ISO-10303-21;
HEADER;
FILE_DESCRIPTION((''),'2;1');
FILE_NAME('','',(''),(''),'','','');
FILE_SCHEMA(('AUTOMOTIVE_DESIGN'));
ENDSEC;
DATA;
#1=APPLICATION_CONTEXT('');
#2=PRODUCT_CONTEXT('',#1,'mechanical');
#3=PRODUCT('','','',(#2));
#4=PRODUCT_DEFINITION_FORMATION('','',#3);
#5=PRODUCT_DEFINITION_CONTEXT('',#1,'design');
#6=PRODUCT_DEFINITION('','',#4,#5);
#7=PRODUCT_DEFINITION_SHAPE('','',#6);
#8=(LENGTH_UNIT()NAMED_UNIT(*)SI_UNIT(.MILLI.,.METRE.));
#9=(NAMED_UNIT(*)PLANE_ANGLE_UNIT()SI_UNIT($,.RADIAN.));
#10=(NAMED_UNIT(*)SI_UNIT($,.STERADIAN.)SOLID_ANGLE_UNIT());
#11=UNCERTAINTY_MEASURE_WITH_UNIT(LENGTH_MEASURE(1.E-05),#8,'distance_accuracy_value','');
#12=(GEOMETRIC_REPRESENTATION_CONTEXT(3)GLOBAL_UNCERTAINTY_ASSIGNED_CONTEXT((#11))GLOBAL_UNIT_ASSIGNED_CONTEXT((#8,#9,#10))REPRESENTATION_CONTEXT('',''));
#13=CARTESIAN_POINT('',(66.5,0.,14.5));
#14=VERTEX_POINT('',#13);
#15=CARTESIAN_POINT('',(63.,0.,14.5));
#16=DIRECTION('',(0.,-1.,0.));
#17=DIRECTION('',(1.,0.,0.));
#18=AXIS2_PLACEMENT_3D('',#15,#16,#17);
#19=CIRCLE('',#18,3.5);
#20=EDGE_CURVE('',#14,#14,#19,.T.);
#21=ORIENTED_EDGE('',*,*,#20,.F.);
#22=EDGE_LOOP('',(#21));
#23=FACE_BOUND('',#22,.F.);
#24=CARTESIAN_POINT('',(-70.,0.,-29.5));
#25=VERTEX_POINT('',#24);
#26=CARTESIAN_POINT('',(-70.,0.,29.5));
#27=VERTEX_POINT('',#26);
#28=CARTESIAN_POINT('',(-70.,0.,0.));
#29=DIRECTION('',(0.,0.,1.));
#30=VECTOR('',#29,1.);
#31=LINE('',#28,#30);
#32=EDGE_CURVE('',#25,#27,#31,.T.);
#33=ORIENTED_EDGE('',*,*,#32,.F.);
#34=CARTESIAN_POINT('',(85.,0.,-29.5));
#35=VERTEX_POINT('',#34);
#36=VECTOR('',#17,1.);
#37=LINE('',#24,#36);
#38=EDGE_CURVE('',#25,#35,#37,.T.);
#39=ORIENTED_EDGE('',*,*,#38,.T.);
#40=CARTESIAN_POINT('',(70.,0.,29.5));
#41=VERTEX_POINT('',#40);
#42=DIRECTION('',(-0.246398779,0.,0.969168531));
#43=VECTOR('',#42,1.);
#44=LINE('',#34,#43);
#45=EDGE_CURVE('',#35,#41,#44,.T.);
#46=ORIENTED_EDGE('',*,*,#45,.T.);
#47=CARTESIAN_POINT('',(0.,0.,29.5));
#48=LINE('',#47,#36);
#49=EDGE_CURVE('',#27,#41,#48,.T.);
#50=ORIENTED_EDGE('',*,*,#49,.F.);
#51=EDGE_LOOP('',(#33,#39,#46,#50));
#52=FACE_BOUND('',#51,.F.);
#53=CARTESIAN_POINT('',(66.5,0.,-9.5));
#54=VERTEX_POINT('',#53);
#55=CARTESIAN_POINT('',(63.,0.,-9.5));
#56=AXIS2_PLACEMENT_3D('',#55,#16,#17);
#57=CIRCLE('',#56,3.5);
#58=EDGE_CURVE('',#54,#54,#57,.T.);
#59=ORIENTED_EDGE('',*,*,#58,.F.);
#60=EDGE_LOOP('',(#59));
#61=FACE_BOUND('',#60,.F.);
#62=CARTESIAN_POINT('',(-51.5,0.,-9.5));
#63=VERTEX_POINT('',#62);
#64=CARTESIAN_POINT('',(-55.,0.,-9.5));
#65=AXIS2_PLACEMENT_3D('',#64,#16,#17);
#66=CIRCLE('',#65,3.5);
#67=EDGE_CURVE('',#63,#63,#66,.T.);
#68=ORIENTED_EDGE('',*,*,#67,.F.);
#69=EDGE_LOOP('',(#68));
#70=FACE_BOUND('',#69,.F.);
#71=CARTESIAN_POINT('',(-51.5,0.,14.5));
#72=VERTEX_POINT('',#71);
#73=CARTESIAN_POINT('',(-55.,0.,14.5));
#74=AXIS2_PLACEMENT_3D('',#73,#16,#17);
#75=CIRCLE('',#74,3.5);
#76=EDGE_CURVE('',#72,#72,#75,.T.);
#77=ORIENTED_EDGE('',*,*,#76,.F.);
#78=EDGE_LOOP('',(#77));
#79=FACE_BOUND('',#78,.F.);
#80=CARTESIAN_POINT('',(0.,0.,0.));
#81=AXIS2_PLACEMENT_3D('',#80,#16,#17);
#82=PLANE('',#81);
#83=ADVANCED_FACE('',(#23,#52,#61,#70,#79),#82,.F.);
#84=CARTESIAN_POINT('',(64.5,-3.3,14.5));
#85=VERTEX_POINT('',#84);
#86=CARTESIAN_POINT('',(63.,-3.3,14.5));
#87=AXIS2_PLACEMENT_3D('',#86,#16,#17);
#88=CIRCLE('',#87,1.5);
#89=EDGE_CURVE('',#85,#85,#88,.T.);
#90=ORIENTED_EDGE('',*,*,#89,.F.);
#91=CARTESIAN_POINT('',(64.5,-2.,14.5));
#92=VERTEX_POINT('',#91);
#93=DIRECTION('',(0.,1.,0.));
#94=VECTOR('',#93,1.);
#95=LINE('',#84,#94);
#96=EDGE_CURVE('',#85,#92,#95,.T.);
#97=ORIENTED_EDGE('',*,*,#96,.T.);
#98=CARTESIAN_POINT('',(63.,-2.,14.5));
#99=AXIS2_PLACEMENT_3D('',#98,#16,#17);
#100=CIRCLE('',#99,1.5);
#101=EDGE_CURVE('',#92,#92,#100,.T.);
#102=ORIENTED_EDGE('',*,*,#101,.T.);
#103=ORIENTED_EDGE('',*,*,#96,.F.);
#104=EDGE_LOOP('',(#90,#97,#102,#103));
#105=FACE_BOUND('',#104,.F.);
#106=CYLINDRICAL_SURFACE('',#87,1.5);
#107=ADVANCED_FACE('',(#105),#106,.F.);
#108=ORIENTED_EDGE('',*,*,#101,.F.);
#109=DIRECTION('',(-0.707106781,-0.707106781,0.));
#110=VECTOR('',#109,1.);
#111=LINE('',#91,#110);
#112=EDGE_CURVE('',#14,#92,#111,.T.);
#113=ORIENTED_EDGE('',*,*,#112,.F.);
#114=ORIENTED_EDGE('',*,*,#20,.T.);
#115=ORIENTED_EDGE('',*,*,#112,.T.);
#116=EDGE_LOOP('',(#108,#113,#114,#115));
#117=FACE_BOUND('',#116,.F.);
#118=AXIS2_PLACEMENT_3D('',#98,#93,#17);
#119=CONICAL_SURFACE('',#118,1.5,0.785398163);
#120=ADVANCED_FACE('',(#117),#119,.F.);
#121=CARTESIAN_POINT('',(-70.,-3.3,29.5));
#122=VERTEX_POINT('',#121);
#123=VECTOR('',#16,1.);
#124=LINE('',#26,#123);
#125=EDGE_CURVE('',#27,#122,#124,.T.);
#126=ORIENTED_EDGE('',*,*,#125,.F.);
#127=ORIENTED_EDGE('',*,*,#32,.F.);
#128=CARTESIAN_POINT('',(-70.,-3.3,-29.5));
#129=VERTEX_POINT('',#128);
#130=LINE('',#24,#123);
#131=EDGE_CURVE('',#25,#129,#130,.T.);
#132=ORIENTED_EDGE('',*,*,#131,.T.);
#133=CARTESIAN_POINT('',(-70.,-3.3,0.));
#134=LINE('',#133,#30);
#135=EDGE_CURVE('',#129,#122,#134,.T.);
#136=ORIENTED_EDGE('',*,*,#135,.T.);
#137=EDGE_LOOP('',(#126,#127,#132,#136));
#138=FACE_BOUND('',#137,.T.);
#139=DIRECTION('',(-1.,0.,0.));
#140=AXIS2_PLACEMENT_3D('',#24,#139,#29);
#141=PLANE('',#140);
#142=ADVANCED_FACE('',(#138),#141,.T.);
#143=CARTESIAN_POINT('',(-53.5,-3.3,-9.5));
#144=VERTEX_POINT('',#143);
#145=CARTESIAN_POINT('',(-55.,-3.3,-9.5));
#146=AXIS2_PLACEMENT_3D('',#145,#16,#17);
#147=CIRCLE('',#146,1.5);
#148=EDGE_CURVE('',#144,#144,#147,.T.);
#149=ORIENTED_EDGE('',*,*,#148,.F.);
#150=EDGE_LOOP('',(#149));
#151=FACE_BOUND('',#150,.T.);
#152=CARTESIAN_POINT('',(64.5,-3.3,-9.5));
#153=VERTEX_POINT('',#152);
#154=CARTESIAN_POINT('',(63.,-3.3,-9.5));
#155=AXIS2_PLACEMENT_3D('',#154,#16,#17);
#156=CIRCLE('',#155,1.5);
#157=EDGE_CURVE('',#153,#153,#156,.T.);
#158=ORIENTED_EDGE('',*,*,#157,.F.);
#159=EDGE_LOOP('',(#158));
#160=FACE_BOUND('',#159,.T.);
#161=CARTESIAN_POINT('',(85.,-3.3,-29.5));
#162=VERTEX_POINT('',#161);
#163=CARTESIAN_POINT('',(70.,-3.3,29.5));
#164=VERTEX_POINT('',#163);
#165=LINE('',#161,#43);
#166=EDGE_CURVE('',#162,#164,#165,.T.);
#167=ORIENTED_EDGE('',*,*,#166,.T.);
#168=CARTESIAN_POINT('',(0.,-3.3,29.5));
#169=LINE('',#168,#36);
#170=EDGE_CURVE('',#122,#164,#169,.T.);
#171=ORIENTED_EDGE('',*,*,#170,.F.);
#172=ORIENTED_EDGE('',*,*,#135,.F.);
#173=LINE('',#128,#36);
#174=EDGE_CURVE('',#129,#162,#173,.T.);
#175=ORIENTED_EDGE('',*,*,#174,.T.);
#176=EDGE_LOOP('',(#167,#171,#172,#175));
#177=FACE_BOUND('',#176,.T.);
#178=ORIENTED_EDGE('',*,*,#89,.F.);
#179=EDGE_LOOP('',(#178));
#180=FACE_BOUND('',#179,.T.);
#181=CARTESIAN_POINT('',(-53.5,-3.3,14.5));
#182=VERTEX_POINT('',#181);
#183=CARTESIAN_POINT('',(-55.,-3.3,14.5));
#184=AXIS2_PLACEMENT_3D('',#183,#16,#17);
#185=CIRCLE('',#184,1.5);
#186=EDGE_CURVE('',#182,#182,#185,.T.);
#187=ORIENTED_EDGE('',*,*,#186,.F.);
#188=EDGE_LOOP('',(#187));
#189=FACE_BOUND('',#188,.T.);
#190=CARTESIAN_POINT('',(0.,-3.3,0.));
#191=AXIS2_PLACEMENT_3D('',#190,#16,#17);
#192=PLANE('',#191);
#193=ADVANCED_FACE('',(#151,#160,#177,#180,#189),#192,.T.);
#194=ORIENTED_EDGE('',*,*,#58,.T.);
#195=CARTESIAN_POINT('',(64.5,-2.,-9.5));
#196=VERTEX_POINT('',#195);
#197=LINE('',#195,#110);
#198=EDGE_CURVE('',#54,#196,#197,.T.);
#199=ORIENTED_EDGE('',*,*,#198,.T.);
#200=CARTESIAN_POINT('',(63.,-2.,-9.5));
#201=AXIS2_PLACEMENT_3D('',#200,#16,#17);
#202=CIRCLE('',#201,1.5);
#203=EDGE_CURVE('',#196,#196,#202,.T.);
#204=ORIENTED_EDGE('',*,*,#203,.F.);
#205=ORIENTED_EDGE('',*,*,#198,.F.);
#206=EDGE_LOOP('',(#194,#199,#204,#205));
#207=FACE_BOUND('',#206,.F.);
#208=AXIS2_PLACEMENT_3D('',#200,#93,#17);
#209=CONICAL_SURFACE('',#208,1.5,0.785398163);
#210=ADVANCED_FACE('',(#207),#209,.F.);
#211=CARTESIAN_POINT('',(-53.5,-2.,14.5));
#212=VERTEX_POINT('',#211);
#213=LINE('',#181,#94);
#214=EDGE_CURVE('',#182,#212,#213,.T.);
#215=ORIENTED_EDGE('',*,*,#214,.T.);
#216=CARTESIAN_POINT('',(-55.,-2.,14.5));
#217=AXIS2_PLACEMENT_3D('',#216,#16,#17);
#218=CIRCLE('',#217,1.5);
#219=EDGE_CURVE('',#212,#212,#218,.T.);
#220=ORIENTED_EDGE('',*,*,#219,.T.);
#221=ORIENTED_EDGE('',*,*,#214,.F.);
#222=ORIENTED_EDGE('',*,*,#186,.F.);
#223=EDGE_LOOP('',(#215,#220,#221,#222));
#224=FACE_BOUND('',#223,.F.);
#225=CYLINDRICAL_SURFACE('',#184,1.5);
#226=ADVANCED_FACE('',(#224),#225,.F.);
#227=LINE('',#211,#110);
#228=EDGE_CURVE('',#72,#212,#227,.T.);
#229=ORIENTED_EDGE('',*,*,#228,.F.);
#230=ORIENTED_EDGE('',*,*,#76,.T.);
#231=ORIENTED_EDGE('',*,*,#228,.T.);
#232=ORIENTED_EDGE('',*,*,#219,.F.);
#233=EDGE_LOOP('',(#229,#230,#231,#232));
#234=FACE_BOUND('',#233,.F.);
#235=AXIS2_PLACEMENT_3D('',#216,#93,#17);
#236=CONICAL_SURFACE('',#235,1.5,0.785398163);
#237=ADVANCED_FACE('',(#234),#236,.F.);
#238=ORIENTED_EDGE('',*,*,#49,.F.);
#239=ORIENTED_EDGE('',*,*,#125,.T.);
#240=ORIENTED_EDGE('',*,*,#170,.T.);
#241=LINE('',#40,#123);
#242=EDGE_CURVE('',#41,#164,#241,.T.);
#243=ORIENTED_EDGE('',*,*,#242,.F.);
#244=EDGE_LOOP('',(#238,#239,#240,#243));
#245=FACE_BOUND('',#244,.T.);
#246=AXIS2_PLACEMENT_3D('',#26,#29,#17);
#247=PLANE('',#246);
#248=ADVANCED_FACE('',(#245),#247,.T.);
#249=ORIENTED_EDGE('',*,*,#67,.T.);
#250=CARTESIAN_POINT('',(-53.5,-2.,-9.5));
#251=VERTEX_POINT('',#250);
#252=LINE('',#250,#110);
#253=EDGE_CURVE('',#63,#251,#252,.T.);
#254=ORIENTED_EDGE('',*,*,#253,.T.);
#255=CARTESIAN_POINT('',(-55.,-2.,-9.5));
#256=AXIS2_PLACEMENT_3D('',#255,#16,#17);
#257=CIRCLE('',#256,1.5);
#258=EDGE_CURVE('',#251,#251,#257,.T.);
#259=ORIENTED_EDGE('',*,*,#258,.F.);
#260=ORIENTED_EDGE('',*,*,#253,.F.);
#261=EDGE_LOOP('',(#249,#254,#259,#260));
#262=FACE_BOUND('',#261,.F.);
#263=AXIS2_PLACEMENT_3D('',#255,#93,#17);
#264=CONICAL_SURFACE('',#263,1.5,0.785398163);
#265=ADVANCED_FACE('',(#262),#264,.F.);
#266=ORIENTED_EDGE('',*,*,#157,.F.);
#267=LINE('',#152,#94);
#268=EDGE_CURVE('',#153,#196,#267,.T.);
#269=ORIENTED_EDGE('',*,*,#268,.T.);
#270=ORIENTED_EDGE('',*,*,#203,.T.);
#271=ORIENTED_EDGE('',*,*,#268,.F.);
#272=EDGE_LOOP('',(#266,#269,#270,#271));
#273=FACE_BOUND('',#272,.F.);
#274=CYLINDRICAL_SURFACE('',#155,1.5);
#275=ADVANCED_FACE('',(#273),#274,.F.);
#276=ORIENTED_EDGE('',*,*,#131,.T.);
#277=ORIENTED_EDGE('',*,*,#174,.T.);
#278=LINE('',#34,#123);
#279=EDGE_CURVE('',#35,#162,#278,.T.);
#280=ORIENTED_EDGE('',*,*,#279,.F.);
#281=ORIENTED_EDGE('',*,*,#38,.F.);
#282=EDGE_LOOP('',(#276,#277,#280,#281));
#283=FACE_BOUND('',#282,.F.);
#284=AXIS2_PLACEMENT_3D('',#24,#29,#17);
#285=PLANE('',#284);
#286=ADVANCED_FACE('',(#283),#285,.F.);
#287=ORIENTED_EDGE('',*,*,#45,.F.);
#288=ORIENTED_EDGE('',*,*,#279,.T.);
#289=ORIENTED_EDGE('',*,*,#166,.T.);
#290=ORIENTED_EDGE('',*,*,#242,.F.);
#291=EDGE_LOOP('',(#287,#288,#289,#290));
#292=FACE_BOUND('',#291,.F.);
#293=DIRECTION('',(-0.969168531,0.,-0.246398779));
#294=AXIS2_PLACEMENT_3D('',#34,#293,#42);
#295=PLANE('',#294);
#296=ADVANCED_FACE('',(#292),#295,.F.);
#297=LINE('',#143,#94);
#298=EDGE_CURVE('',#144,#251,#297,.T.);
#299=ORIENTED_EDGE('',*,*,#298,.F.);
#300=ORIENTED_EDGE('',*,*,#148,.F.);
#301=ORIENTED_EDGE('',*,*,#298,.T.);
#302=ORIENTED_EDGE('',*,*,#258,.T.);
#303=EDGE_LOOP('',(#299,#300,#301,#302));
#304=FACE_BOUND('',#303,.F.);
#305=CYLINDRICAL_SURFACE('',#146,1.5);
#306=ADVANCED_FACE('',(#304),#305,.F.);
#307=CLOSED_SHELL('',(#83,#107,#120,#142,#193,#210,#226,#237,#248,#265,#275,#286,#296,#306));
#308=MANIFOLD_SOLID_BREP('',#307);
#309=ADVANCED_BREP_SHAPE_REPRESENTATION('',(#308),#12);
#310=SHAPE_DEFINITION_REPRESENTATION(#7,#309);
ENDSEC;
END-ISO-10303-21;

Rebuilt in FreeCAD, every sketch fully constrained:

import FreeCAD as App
import Part
import Sketcher

V = App.Vector
Q = App.Units.Quantity


def edges_at(feature, points):
    """Names of the edges that pass closest to the given points."""
    edges = feature.Shape.Edges
    near = lambda p: min(range(len(edges)), key=lambda i: edges[i].distToShape(Part.Vertex(*p))[0])
    return sorted({f"Edge{near(p) + 1}" for p in points})

doc = App.newDocument("Part")
body = doc.addObject("PartDesign::Body", "Body")

# Sketch on XZ plane
sketch1 = body.newObject("Sketcher::SketchObject", "Sketch")
sketch1.AttachmentSupport = (doc.getObject("XZ_Plane"), [""])
sketch1.MapMode = "FlatFace"
sketch1.addGeometry([
    Part.LineSegment(V(-70, 30, 0), V(-70, -30, 0)),
    Part.LineSegment(V(-70, -30, 0), V(85, -30, 0)),
    Part.LineSegment(V(85, -30, 0), V(70, 30, 0)),
    Part.LineSegment(V(70, 30, 0), V(-70, 30, 0)),
], False)
sketch1.addConstraint([
    Sketcher.Constraint("Coincident", 0, 2, 1, 1),
    Sketcher.Constraint("Coincident", 1, 2, 2, 1),
    Sketcher.Constraint("Coincident", 2, 2, 3, 1),
    Sketcher.Constraint("Coincident", 3, 2, 0, 1),
    Sketcher.Constraint("Vertical", 0),
    Sketcher.Constraint("Horizontal", 1),
    Sketcher.Constraint("Horizontal", 3),
    Sketcher.Constraint("Symmetric", 0, 2, 2, 2, -1, 1),
    Sketcher.Constraint("DistanceX", 1, 1, 1, 2, Q("155 mm")),
    Sketcher.Constraint("DistanceX", 3, 2, 3, 1, Q("140 mm")),
    Sketcher.Constraint("DistanceY", 0, 2, 0, 1, Q("59 mm")),
])
pad1 = body.newObject("PartDesign::Pad", "Pad")
pad1.Profile = sketch1
pad1.Length = 3.3

# Sketch on XZ plane
sketch2 = body.newObject("Sketcher::SketchObject", "Sketch001")
sketch2.AttachmentSupport = (doc.getObject("XZ_Plane"), [""])
sketch2.MapMode = "FlatFace"
sketch2.AttachmentOffset = App.Placement(V(0, 0, 3.3), App.Rotation())
sketch2.addGeometry([
    Part.Circle(V(-55, 14.5, 0), V(0, 0, 1), 1.5),
    Part.Circle(V(63, 14.5, 0), V(0, 0, 1), 1.5),
    Part.Circle(V(63, -9.5, 0), V(0, 0, 1), 1.5),
    Part.Circle(V(-55, -9.5, 0), V(0, 0, 1), 1.5),
], False)
sketch2.addConstraint([
    Sketcher.Constraint("Equal", 0, 1),
    Sketcher.Constraint("Equal", 1, 2),
    Sketcher.Constraint("Equal", 2, 3),
    Sketcher.Constraint("Horizontal", 0, 3, 1, 3),
    Sketcher.Constraint("Horizontal", 2, 3, 3, 3),
    Sketcher.Constraint("Vertical", 1, 3, 2, 3),
    Sketcher.Constraint("Vertical", 0, 3, 3, 3),
    Sketcher.Constraint("Diameter", 0, Q("3 mm")),
    Sketcher.Constraint("DistanceX", 0, 3, -1, 1, Q("55 mm")),
    Sketcher.Constraint("DistanceX", -1, 1, 1, 3, Q("63 mm")),
    Sketcher.Constraint("DistanceY", 2, 3, 1, 3, Q("24 mm")),
    Sketcher.Constraint("DistanceY", -1, 1, 0, 3, Q("14.5 mm")),
])
pocket1 = body.newObject("PartDesign::Pocket", "Pocket")
pocket1.Profile = sketch2
pocket1.Length = 25
doc.recompute()

chamfer = body.newObject("PartDesign::Chamfer", "Chamfer")
chamfer.Base = (pocket1, edges_at(pocket1, [
    (-56.5, 0, -9.5),
    (-56.5, 0, 14.5),
    (61.5, 0, -9.5),
    (61.5, 0, 14.5),
]))
chamfer.Size = 2

doc.recompute()
